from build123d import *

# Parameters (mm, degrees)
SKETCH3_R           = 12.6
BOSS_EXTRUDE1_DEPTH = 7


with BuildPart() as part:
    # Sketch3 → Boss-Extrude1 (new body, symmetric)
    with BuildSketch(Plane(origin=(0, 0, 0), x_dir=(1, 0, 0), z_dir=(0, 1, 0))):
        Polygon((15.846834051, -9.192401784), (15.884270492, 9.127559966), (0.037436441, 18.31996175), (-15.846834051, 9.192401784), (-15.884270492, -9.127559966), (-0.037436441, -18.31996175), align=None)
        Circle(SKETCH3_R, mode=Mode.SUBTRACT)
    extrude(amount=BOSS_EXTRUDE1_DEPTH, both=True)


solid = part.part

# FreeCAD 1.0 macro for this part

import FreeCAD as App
import Part
import Sketcher


def add_polygon(sketch, points):
    """Adds a closed chain of lines whose ends are joined by coincident constraints."""
    first, n = sketch.GeometryCount, len(points)
    for a, b in zip(points, points[1:] + points[:1]):
        sketch.addGeometry(Part.LineSegment(App.Vector(*a, 0), App.Vector(*b, 0)), False)
    for i in range(n):
        sketch.addConstraint(Sketcher.Constraint("Coincident", first + i, 2, first + (i + 1) % n, 1))

doc = App.newDocument("Part")
params = doc.addObject("Spreadsheet::Sheet", "Params")
for row, (alias, value) in enumerate([
    ("sketch1_diameter", "25.2 mm"),
    ("sketch1_length", "18.32 mm"),
    ("pad1_length", "14 mm"),
], start=1):
    params.set(f"A{row}", alias)
    params.set(f"B{row}", "=" + value)
    params.setAlias(f"B{row}", alias)

body = doc.addObject("PartDesign::Body", "Body")

sketch1 = body.newObject("Sketcher::SketchObject", "Sketch")
sketch1.AttachmentSupport = (doc.getObject("XZ_Plane"), [""])
sketch1.MapMode = "FlatFace"
add_polygon(sketch1, [(16, 9), (16, -9), (0, -18), (-16, -9), (-16, 9), (0, 18)])
sketch1.addGeometry(Part.Circle(App.Vector(0, 0, 0), App.Vector(0, 0, 1), 13), False)
sketch1.addConstraint([
    Sketcher.Constraint("Coincident", 6, 3, -1, 1),
    Sketcher.Constraint("Symmetric", 0, 2, 3, 2, -1, 1),
    Sketcher.Constraint("Symmetric", 1, 2, 4, 2, -1, 1),
    Sketcher.Constraint("Symmetric", 2, 2, 5, 2, -1, 1),
    Sketcher.Constraint("Equal", 0, 1),
    Sketcher.Constraint("Equal", 1, 2),
    Sketcher.Constraint("Diameter", 6, 25.2),
    Sketcher.Constraint("Distance", 0, 18.32),
    Sketcher.Constraint("DistanceY", 2, 2, -1, 1, 9.192402),
    Sketcher.Constraint("DistanceY", 1, 2, 0, 2, 9.192402),
    Sketcher.Constraint("DistanceX", -1, 1, 0, 2, 15.88427),
])
sketch1.setExpression("Constraints[12]", "Params.sketch1_diameter")
sketch1.setExpression("Constraints[13]", "Params.sketch1_length")
pad1 = body.newObject("PartDesign::Pad", "Pad")
pad1.Profile = sketch1
pad1.setExpression("Length", "Params.pad1_length")
pad1.Midplane = True

doc.recompute()
